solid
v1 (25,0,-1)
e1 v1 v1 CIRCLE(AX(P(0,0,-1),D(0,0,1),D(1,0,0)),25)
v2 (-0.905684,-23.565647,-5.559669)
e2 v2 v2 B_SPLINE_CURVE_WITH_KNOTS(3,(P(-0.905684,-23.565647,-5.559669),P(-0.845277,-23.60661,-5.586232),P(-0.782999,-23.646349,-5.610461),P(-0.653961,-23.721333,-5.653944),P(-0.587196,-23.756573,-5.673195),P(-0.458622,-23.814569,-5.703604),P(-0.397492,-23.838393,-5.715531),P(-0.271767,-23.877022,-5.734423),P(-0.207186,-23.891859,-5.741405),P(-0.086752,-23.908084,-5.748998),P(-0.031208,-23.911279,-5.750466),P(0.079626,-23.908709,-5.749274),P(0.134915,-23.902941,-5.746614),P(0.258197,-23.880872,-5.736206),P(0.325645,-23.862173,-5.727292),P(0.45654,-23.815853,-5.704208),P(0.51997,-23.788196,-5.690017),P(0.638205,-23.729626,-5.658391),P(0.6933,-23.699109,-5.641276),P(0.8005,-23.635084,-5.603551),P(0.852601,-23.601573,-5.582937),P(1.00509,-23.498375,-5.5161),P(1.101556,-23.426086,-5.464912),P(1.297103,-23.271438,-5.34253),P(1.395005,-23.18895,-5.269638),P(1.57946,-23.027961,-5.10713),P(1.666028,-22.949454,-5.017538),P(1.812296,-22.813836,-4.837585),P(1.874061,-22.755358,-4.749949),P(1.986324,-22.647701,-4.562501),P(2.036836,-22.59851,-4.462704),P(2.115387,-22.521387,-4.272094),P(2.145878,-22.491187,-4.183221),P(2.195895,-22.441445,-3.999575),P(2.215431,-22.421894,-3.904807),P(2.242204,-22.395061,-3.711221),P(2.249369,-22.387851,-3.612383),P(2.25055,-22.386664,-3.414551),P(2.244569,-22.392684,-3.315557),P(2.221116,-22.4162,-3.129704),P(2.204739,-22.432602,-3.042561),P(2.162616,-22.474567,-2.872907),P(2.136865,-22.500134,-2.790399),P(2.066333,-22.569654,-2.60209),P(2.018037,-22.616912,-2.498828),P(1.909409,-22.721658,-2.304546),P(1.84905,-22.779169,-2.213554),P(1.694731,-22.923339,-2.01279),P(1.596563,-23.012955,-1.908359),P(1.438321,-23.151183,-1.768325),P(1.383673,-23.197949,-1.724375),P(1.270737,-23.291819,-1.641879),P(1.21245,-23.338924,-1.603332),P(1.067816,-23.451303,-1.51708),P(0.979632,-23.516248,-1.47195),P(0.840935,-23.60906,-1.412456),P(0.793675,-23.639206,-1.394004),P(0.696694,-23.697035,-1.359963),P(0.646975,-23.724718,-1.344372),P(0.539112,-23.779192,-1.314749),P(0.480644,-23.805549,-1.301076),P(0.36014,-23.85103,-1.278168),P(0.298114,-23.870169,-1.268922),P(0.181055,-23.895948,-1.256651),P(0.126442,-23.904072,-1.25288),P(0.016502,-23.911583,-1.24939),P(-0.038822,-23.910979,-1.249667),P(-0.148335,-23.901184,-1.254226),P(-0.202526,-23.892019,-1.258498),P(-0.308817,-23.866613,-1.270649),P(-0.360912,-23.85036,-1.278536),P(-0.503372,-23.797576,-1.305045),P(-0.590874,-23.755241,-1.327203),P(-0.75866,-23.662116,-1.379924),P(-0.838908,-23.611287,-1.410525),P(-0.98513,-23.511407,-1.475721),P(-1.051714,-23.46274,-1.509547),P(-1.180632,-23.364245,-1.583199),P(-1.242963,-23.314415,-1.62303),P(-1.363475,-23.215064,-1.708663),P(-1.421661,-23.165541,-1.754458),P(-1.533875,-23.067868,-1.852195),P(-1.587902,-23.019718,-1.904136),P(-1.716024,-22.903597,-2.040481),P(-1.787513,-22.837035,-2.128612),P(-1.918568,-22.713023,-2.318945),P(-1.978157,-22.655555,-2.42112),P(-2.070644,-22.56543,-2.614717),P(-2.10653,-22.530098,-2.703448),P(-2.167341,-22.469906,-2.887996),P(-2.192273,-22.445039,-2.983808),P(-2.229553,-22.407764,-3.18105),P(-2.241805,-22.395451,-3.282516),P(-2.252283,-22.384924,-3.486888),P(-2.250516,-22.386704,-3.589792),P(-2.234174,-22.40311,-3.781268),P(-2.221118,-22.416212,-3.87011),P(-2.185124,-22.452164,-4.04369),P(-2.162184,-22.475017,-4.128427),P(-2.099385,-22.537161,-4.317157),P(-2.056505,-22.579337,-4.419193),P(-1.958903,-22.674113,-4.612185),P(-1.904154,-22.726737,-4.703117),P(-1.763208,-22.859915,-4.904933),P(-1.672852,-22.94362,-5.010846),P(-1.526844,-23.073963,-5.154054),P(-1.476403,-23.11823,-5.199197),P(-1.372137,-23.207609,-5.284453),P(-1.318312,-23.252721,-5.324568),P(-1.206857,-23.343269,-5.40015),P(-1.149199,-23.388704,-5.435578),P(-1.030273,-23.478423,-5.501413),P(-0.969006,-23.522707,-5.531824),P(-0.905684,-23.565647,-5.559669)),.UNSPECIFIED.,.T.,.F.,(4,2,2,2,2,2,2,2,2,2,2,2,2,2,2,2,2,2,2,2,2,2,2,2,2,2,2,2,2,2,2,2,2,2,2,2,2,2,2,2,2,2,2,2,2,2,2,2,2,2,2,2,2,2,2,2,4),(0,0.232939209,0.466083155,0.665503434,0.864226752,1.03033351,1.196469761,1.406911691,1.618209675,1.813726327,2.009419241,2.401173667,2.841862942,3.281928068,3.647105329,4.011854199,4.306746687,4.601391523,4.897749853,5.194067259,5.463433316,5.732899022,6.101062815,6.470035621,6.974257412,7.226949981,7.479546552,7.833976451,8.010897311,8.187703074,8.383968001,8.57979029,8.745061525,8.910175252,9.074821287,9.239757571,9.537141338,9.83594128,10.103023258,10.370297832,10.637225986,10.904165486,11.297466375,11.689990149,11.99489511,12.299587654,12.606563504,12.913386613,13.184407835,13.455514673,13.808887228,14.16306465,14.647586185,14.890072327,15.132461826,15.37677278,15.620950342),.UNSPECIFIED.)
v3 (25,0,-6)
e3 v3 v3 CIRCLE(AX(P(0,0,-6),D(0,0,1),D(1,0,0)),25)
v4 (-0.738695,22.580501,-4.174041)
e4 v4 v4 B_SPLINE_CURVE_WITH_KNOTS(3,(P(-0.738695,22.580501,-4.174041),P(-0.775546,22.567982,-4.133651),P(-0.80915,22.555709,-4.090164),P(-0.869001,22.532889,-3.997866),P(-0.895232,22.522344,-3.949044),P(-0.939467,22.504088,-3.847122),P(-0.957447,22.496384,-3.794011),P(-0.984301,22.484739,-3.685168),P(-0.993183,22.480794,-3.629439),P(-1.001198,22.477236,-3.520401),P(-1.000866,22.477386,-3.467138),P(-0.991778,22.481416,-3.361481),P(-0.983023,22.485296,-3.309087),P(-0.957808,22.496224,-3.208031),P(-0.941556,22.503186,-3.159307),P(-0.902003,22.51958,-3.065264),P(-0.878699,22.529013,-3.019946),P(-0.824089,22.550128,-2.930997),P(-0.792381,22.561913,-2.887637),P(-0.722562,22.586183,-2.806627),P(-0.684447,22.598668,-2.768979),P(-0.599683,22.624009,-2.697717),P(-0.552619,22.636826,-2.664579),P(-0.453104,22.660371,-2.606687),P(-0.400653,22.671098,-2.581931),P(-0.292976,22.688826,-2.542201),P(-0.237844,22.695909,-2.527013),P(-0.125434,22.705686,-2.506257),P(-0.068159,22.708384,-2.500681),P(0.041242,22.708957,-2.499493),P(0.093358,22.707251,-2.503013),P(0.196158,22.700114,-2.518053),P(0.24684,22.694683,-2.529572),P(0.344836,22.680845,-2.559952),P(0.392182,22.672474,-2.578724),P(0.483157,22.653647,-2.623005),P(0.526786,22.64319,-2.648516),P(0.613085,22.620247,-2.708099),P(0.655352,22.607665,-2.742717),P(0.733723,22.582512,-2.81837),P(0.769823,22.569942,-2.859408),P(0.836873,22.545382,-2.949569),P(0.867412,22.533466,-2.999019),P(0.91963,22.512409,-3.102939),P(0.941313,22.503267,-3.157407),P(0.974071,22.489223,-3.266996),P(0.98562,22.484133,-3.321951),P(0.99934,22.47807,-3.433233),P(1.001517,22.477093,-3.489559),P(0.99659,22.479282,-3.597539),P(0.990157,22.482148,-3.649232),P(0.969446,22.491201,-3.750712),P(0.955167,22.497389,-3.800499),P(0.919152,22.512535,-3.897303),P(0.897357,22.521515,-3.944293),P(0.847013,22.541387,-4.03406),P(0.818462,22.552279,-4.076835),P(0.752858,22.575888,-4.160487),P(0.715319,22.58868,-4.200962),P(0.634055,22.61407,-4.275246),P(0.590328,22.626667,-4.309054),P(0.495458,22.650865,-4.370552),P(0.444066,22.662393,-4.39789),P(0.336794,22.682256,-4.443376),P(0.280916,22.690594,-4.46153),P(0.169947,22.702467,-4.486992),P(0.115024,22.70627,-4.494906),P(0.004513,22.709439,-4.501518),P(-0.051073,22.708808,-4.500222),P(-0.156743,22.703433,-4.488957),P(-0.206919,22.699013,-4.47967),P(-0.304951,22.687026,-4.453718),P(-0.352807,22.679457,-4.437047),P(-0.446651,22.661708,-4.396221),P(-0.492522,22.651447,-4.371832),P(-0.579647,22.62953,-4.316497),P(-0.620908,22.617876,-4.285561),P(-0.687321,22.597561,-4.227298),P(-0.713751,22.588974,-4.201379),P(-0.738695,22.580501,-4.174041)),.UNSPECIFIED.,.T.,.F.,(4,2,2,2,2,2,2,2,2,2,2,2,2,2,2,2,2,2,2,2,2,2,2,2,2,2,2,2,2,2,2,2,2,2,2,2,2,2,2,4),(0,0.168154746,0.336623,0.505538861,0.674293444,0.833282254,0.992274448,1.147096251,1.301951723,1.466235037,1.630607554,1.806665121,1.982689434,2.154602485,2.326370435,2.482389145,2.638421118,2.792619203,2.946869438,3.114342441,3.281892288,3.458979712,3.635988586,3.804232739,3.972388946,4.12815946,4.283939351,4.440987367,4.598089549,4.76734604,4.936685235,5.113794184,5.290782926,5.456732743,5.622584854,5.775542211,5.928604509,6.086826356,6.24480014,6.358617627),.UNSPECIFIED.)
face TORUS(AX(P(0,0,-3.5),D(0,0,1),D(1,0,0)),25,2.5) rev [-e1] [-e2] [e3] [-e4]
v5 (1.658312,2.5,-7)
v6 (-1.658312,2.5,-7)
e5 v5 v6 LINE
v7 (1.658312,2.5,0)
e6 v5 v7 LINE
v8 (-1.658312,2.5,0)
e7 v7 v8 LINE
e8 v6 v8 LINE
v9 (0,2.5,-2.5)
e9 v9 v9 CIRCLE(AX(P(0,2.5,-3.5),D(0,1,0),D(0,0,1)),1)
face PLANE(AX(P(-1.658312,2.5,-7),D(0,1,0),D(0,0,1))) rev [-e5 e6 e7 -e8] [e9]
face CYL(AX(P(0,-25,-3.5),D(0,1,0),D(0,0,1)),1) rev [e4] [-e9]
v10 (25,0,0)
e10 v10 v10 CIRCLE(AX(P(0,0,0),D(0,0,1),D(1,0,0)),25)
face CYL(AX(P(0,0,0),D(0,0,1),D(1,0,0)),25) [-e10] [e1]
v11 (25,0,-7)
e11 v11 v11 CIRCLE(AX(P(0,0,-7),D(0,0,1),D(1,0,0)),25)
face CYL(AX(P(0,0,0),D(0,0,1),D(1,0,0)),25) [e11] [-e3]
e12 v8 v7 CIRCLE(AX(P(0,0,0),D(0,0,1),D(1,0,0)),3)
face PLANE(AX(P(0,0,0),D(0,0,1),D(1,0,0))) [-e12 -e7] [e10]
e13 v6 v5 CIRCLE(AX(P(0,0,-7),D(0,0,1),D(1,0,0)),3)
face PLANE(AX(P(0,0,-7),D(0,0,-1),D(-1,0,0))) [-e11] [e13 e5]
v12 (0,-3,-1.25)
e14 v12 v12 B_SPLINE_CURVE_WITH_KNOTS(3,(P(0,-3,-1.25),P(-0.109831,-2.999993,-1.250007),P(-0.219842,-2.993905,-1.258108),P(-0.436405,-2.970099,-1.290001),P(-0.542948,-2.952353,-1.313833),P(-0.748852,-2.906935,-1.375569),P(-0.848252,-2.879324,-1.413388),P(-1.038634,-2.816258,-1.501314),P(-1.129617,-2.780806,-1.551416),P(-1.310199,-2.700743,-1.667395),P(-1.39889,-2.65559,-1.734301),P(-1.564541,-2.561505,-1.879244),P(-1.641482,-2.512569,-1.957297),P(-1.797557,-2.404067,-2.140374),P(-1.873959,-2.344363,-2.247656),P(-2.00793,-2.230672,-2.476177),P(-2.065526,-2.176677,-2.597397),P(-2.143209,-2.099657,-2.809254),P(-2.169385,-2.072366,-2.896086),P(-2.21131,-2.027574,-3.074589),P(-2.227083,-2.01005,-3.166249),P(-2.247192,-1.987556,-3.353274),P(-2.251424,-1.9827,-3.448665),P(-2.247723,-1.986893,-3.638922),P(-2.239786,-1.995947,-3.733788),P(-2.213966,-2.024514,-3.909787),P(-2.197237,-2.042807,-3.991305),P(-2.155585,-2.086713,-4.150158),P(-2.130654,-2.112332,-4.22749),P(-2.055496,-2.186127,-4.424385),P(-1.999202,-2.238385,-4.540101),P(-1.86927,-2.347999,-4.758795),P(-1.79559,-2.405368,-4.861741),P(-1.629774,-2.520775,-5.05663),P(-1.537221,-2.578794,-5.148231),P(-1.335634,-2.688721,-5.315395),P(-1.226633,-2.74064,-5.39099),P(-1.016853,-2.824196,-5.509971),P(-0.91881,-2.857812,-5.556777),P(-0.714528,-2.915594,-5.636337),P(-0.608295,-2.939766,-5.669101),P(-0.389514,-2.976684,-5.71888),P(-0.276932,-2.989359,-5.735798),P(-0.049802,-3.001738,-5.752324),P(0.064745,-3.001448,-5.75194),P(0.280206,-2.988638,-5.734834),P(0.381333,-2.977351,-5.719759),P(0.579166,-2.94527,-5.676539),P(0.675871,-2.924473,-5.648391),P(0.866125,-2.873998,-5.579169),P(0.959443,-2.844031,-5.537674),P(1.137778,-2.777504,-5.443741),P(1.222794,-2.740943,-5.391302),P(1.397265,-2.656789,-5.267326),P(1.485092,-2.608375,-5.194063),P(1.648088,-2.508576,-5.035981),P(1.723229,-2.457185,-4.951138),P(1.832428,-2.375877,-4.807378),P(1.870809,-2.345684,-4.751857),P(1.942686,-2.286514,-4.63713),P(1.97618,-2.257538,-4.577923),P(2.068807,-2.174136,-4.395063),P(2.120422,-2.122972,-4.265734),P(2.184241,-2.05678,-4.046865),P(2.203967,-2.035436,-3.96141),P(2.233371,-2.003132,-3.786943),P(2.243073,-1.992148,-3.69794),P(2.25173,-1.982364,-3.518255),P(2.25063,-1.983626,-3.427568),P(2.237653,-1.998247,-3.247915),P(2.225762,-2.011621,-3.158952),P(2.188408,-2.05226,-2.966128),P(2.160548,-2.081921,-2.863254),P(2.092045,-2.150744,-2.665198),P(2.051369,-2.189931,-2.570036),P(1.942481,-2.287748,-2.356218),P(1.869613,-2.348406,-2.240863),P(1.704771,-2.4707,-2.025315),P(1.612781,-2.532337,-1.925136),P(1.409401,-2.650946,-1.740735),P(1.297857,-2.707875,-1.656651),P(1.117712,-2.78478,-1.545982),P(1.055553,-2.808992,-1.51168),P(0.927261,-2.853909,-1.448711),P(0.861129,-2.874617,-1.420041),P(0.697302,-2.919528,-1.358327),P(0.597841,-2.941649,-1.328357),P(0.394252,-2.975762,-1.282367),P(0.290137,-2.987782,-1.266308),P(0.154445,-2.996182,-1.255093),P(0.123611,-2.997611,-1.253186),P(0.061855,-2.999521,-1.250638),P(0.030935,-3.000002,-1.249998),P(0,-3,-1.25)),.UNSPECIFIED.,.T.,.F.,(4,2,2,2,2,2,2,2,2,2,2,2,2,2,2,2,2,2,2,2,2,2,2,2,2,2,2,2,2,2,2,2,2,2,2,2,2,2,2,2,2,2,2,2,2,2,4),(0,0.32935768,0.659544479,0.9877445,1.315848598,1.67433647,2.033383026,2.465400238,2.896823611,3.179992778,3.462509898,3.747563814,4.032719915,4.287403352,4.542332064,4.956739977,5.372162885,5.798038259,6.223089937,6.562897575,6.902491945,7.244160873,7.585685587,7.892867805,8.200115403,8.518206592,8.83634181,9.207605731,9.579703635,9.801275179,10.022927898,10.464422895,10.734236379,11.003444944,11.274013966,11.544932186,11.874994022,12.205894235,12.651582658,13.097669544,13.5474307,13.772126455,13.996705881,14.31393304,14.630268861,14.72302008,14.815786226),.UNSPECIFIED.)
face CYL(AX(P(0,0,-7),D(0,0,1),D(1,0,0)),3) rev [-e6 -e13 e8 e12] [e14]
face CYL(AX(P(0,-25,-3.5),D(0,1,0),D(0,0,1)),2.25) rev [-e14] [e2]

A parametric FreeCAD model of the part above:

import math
import FreeCAD as App
import Part
import Sketcher

V = App.Vector

doc = App.newDocument("Part")
body = doc.addObject("PartDesign::Body", "Body")

# Sketch on XZ plane
sketch1 = doc.addObject("Sketcher::SketchObject", "Sketch")
body.addObject(sketch1)
sketch1.AttachmentSupport = (doc.XZ_Plane, [""])
sketch1.MapMode = "FlatFace"
sketch1.addGeometry(Part.LineSegment(V(25, -6, 0), V(25, -7, 0)), False)
sketch1.addGeometry(Part.LineSegment(V(25, -7, 0), V(0, -7, 0)), False)
sketch1.addGeometry(Part.LineSegment(V(0, -7, 0), V(0, 0, 0)), False)
sketch1.addGeometry(Part.LineSegment(V(0, 0, 0), V(25, 0, 0)), False)
sketch1.addGeometry(Part.LineSegment(V(25, 0, 0), V(25, -1, 0)), False)
sketch1.addGeometry(Part.ArcOfCircle(Part.Circle(V(25, -3.5, 0), V(0, 0, 1), 2.5), math.radians(90), math.radians(270)), False)
sketch1.addConstraint(Sketcher.Constraint("Coincident", 0, 2, 1, 1))
sketch1.addConstraint(Sketcher.Constraint("Coincident", 1, 2, 2, 1))
sketch1.addConstraint(Sketcher.Constraint("Coincident", 2, 2, 3, 1))
sketch1.addConstraint(Sketcher.Constraint("Coincident", 3, 2, 4, 1))
sketch1.addConstraint(Sketcher.Constraint("Coincident", 4, 2, 5, 1))
sketch1.addConstraint(Sketcher.Constraint("Coincident", 5, 2, 0, 1))
sketch1.addConstraint(Sketcher.Constraint("Vertical", 0))
sketch1.addConstraint(Sketcher.Constraint("Horizontal", 1))
sketch1.addConstraint(Sketcher.Constraint("Vertical", 2))
sketch1.addConstraint(Sketcher.Constraint("Horizontal", 3))
sketch1.addConstraint(Sketcher.Constraint("Vertical", 4))
sketch1.addConstraint(Sketcher.Constraint("Coincident", 2, 2, -1, 1))
sketch1.addConstraint(Sketcher.Constraint("Vertical", 5, 3, 0, 2))
sketch1.addConstraint(Sketcher.Constraint("Vertical", 0, 2, 3, 2))
sketch1.addConstraint(Sketcher.Constraint("Equal", 0, 4))
sketch1.addConstraint(Sketcher.Constraint("Radius", 5, 2.5))
sketch1.addConstraint(Sketcher.Constraint("DistanceX", 1, 2, 1, 1, 25.0))
sketch1.addConstraint(Sketcher.Constraint("DistanceY", 0, 2, 0, 1, 1.0))
revolution = doc.addObject("PartDesign::Revolution", "Revolution")
body.addObject(revolution)
revolution.Profile = sketch1
revolution.ReferenceAxis = (sketch1, ["V_Axis"])
revolution.Angle = 360

# Sketch on XY plane
sketch2 = doc.addObject("Sketcher::SketchObject", "Sketch001")
body.addObject(sketch2)
sketch2.AttachmentSupport = (doc.XY_Plane, [""])
sketch2.MapMode = "FlatFace"
sketch2.addGeometry(Part.LineSegment(V(1.7, 2.5, 0), V(-1.7, 2.5, 0)), False)
sketch2.addGeometry(Part.ArcOfCircle(Part.Circle(V(0, 0, 0), V(0, 0, 1), 3), math.radians(124), math.radians(416)), False)
sketch2.addConstraint(Sketcher.Constraint("Coincident", 0, 1, 1, 2))
sketch2.addConstraint(Sketcher.Constraint("Coincident", 1, 1, 0, 2))
sketch2.addConstraint(Sketcher.Constraint("Horizontal", 0))
sketch2.addConstraint(Sketcher.Constraint("Coincident", 1, 3, -1, 1))
sketch2.addConstraint(Sketcher.Constraint("Radius", 1, 3.0))
sketch2.addConstraint(Sketcher.Constraint("DistanceY", -1, 1, 0, 1, 2.5))
pocket1 = doc.addObject("PartDesign::Pocket", "Pocket")
body.addObject(pocket1)
pocket1.Profile = sketch2
pocket1.Type = "ThroughAll"

# Sketch on XZ plane
sketch3 = doc.addObject("Sketcher::SketchObject", "Sketch002")
body.addObject(sketch3)
sketch3.AttachmentSupport = (doc.XZ_Plane, [""])
sketch3.MapMode = "FlatFace"
sketch3.addGeometry(Part.Circle(V(0, -3.5, 0), V(0, 0, 1), 1), False)
sketch3.addConstraint(Sketcher.Constraint("PointOnObject", 0, 3, -2))
sketch3.addConstraint(Sketcher.Constraint("Diameter", 0, 2.0))
sketch3.addConstraint(Sketcher.Constraint("DistanceY", 0, 3, -1, 1, 3.5))
pocket2 = doc.addObject("PartDesign::Pocket", "Pocket001")
body.addObject(pocket2)
pocket2.Profile = sketch3
pocket2.Type = "ThroughAll"
pocket2.Midplane = True

# Sketch on XZ plane
sketch4 = doc.addObject("Sketcher::SketchObject", "Sketch003")
body.addObject(sketch4)
sketch4.AttachmentSupport = (doc.XZ_Plane, [""])
sketch4.MapMode = "FlatFace"
sketch4.addGeometry(Part.Circle(V(0, -3.5, 0), V(0, 0, 1), 2.2), False)
sketch4.addConstraint(Sketcher.Constraint("PointOnObject", 0, 3, -2))
sketch4.addConstraint(Sketcher.Constraint("Diameter", 0, 4.5))
sketch4.addConstraint(Sketcher.Constraint("DistanceY", 0, 3, -1, 1, 3.5))
pocket3 = doc.addObject("PartDesign::Pocket", "Pocket002")
body.addObject(pocket3)
pocket3.Profile = sketch4
pocket3.Type = "ThroughAll"
pocket3.Reversed = True

doc.recompute()
